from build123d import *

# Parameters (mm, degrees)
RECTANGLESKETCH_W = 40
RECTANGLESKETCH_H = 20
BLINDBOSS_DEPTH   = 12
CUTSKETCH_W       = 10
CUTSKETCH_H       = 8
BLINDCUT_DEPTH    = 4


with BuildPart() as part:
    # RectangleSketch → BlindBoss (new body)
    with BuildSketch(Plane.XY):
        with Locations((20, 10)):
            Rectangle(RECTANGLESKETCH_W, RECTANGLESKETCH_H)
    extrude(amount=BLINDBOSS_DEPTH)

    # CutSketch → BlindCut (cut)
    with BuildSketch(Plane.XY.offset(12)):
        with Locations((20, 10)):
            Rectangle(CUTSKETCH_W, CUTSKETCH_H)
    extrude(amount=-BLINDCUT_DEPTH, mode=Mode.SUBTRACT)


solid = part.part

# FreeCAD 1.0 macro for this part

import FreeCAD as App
import Part
import Sketcher

V = App.Vector


def add_polygon(sketch, points):
    """Adds a closed chain of lines whose ends are joined by coincident constraints."""
    first, n = sketch.GeometryCount, len(points)
    for a, b in zip(points, points[1:] + points[:1]):
        sketch.addGeometry(Part.LineSegment(App.Vector(*a, 0), App.Vector(*b, 0)), False)
    for i in range(n):
        sketch.addConstraint(Sketcher.Constraint("Coincident", first + i, 2, first + (i + 1) % n, 1))

doc = App.newDocument("Part")
params = doc.addObject("Spreadsheet::Sheet", "Params")
for row, (alias, value) in enumerate([
    ("sketch1_width", "40 mm"),
    ("sketch1_height", "20 mm"),
    ("pad1_length", "12 mm"),
    ("sketch2_width", "10 mm"),
    ("sketch2_height", "8 mm"),
    ("pocket1_length", "4 mm"),
], start=1):
    params.set(f"A{row}", alias)
    params.set(f"B{row}", "=" + value)
    params.setAlias(f"B{row}", alias)

body = doc.addObject("PartDesign::Body", "Body")

# Sketch on XY plane
sketch1 = doc.addObject("Sketcher::SketchObject", "Sketch")
body.addObject(sketch1)
sketch1.AttachmentSupport = (doc.XY_Plane, [""])
sketch1.MapMode = "FlatFace"
add_polygon(sketch1, [(0, 20), (0, 0), (40, 0), (40, 20)])  # lines 0-3
sketch1.addConstraint([
    Sketcher.Constraint("Vertical", 0),
    Sketcher.Constraint("Horizontal", 1),
    Sketcher.Constraint("Vertical", 2),
    Sketcher.Constraint("Horizontal", 3),
    Sketcher.Constraint("Coincident", 0, 2, -1, 1),
    Sketcher.Constraint("DistanceX", 1, 1, 1, 2, 40.0),
    Sketcher.Constraint("DistanceY", 0, 2, 0, 1, 20.0),
])
sketch1.setExpression("Constraints[9]", "Params.sketch1_width")
sketch1.setExpression("Constraints[10]", "Params.sketch1_height")
pad1 = doc.addObject("PartDesign::Pad", "Pad")
body.addObject(pad1)
pad1.Profile = sketch1
pad1.setExpression("Length", "Params.pad1_length")

# Sketch on XY plane
sketch2 = doc.addObject("Sketcher::SketchObject", "Sketch001")
body.addObject(sketch2)
sketch2.AttachmentSupport = (doc.XY_Plane, [""])
sketch2.MapMode = "FlatFace"
sketch2.AttachmentOffset = App.Placement(V(0, 0, 12), App.Rotation())
add_polygon(sketch2, [(15, 14), (15, 6), (25, 6), (25, 14)])  # lines 0-3
sketch2.addConstraint([
    Sketcher.Constraint("Vertical", 0),
    Sketcher.Constraint("Horizontal", 1),
    Sketcher.Constraint("Vertical", 2),
    Sketcher.Constraint("Horizontal", 3),
    Sketcher.Constraint("DistanceX", 1, 1, 1, 2, 10.0),
    Sketcher.Constraint("DistanceY", 0, 2, 0, 1, 8.0),
    Sketcher.Constraint("DistanceX", -1, 1, 0, 2, 15.0),
    Sketcher.Constraint("DistanceY", -1, 1, 0, 2, 6.0),
])
sketch2.setExpression("Constraints[8]", "Params.sketch2_width")
sketch2.setExpression("Constraints[9]", "Params.sketch2_height")
pocket1 = doc.addObject("PartDesign::Pocket", "Pocket")
body.addObject(pocket1)
pocket1.Profile = sketch2
pocket1.setExpression("Length", "Params.pocket1_length")

doc.recompute()
